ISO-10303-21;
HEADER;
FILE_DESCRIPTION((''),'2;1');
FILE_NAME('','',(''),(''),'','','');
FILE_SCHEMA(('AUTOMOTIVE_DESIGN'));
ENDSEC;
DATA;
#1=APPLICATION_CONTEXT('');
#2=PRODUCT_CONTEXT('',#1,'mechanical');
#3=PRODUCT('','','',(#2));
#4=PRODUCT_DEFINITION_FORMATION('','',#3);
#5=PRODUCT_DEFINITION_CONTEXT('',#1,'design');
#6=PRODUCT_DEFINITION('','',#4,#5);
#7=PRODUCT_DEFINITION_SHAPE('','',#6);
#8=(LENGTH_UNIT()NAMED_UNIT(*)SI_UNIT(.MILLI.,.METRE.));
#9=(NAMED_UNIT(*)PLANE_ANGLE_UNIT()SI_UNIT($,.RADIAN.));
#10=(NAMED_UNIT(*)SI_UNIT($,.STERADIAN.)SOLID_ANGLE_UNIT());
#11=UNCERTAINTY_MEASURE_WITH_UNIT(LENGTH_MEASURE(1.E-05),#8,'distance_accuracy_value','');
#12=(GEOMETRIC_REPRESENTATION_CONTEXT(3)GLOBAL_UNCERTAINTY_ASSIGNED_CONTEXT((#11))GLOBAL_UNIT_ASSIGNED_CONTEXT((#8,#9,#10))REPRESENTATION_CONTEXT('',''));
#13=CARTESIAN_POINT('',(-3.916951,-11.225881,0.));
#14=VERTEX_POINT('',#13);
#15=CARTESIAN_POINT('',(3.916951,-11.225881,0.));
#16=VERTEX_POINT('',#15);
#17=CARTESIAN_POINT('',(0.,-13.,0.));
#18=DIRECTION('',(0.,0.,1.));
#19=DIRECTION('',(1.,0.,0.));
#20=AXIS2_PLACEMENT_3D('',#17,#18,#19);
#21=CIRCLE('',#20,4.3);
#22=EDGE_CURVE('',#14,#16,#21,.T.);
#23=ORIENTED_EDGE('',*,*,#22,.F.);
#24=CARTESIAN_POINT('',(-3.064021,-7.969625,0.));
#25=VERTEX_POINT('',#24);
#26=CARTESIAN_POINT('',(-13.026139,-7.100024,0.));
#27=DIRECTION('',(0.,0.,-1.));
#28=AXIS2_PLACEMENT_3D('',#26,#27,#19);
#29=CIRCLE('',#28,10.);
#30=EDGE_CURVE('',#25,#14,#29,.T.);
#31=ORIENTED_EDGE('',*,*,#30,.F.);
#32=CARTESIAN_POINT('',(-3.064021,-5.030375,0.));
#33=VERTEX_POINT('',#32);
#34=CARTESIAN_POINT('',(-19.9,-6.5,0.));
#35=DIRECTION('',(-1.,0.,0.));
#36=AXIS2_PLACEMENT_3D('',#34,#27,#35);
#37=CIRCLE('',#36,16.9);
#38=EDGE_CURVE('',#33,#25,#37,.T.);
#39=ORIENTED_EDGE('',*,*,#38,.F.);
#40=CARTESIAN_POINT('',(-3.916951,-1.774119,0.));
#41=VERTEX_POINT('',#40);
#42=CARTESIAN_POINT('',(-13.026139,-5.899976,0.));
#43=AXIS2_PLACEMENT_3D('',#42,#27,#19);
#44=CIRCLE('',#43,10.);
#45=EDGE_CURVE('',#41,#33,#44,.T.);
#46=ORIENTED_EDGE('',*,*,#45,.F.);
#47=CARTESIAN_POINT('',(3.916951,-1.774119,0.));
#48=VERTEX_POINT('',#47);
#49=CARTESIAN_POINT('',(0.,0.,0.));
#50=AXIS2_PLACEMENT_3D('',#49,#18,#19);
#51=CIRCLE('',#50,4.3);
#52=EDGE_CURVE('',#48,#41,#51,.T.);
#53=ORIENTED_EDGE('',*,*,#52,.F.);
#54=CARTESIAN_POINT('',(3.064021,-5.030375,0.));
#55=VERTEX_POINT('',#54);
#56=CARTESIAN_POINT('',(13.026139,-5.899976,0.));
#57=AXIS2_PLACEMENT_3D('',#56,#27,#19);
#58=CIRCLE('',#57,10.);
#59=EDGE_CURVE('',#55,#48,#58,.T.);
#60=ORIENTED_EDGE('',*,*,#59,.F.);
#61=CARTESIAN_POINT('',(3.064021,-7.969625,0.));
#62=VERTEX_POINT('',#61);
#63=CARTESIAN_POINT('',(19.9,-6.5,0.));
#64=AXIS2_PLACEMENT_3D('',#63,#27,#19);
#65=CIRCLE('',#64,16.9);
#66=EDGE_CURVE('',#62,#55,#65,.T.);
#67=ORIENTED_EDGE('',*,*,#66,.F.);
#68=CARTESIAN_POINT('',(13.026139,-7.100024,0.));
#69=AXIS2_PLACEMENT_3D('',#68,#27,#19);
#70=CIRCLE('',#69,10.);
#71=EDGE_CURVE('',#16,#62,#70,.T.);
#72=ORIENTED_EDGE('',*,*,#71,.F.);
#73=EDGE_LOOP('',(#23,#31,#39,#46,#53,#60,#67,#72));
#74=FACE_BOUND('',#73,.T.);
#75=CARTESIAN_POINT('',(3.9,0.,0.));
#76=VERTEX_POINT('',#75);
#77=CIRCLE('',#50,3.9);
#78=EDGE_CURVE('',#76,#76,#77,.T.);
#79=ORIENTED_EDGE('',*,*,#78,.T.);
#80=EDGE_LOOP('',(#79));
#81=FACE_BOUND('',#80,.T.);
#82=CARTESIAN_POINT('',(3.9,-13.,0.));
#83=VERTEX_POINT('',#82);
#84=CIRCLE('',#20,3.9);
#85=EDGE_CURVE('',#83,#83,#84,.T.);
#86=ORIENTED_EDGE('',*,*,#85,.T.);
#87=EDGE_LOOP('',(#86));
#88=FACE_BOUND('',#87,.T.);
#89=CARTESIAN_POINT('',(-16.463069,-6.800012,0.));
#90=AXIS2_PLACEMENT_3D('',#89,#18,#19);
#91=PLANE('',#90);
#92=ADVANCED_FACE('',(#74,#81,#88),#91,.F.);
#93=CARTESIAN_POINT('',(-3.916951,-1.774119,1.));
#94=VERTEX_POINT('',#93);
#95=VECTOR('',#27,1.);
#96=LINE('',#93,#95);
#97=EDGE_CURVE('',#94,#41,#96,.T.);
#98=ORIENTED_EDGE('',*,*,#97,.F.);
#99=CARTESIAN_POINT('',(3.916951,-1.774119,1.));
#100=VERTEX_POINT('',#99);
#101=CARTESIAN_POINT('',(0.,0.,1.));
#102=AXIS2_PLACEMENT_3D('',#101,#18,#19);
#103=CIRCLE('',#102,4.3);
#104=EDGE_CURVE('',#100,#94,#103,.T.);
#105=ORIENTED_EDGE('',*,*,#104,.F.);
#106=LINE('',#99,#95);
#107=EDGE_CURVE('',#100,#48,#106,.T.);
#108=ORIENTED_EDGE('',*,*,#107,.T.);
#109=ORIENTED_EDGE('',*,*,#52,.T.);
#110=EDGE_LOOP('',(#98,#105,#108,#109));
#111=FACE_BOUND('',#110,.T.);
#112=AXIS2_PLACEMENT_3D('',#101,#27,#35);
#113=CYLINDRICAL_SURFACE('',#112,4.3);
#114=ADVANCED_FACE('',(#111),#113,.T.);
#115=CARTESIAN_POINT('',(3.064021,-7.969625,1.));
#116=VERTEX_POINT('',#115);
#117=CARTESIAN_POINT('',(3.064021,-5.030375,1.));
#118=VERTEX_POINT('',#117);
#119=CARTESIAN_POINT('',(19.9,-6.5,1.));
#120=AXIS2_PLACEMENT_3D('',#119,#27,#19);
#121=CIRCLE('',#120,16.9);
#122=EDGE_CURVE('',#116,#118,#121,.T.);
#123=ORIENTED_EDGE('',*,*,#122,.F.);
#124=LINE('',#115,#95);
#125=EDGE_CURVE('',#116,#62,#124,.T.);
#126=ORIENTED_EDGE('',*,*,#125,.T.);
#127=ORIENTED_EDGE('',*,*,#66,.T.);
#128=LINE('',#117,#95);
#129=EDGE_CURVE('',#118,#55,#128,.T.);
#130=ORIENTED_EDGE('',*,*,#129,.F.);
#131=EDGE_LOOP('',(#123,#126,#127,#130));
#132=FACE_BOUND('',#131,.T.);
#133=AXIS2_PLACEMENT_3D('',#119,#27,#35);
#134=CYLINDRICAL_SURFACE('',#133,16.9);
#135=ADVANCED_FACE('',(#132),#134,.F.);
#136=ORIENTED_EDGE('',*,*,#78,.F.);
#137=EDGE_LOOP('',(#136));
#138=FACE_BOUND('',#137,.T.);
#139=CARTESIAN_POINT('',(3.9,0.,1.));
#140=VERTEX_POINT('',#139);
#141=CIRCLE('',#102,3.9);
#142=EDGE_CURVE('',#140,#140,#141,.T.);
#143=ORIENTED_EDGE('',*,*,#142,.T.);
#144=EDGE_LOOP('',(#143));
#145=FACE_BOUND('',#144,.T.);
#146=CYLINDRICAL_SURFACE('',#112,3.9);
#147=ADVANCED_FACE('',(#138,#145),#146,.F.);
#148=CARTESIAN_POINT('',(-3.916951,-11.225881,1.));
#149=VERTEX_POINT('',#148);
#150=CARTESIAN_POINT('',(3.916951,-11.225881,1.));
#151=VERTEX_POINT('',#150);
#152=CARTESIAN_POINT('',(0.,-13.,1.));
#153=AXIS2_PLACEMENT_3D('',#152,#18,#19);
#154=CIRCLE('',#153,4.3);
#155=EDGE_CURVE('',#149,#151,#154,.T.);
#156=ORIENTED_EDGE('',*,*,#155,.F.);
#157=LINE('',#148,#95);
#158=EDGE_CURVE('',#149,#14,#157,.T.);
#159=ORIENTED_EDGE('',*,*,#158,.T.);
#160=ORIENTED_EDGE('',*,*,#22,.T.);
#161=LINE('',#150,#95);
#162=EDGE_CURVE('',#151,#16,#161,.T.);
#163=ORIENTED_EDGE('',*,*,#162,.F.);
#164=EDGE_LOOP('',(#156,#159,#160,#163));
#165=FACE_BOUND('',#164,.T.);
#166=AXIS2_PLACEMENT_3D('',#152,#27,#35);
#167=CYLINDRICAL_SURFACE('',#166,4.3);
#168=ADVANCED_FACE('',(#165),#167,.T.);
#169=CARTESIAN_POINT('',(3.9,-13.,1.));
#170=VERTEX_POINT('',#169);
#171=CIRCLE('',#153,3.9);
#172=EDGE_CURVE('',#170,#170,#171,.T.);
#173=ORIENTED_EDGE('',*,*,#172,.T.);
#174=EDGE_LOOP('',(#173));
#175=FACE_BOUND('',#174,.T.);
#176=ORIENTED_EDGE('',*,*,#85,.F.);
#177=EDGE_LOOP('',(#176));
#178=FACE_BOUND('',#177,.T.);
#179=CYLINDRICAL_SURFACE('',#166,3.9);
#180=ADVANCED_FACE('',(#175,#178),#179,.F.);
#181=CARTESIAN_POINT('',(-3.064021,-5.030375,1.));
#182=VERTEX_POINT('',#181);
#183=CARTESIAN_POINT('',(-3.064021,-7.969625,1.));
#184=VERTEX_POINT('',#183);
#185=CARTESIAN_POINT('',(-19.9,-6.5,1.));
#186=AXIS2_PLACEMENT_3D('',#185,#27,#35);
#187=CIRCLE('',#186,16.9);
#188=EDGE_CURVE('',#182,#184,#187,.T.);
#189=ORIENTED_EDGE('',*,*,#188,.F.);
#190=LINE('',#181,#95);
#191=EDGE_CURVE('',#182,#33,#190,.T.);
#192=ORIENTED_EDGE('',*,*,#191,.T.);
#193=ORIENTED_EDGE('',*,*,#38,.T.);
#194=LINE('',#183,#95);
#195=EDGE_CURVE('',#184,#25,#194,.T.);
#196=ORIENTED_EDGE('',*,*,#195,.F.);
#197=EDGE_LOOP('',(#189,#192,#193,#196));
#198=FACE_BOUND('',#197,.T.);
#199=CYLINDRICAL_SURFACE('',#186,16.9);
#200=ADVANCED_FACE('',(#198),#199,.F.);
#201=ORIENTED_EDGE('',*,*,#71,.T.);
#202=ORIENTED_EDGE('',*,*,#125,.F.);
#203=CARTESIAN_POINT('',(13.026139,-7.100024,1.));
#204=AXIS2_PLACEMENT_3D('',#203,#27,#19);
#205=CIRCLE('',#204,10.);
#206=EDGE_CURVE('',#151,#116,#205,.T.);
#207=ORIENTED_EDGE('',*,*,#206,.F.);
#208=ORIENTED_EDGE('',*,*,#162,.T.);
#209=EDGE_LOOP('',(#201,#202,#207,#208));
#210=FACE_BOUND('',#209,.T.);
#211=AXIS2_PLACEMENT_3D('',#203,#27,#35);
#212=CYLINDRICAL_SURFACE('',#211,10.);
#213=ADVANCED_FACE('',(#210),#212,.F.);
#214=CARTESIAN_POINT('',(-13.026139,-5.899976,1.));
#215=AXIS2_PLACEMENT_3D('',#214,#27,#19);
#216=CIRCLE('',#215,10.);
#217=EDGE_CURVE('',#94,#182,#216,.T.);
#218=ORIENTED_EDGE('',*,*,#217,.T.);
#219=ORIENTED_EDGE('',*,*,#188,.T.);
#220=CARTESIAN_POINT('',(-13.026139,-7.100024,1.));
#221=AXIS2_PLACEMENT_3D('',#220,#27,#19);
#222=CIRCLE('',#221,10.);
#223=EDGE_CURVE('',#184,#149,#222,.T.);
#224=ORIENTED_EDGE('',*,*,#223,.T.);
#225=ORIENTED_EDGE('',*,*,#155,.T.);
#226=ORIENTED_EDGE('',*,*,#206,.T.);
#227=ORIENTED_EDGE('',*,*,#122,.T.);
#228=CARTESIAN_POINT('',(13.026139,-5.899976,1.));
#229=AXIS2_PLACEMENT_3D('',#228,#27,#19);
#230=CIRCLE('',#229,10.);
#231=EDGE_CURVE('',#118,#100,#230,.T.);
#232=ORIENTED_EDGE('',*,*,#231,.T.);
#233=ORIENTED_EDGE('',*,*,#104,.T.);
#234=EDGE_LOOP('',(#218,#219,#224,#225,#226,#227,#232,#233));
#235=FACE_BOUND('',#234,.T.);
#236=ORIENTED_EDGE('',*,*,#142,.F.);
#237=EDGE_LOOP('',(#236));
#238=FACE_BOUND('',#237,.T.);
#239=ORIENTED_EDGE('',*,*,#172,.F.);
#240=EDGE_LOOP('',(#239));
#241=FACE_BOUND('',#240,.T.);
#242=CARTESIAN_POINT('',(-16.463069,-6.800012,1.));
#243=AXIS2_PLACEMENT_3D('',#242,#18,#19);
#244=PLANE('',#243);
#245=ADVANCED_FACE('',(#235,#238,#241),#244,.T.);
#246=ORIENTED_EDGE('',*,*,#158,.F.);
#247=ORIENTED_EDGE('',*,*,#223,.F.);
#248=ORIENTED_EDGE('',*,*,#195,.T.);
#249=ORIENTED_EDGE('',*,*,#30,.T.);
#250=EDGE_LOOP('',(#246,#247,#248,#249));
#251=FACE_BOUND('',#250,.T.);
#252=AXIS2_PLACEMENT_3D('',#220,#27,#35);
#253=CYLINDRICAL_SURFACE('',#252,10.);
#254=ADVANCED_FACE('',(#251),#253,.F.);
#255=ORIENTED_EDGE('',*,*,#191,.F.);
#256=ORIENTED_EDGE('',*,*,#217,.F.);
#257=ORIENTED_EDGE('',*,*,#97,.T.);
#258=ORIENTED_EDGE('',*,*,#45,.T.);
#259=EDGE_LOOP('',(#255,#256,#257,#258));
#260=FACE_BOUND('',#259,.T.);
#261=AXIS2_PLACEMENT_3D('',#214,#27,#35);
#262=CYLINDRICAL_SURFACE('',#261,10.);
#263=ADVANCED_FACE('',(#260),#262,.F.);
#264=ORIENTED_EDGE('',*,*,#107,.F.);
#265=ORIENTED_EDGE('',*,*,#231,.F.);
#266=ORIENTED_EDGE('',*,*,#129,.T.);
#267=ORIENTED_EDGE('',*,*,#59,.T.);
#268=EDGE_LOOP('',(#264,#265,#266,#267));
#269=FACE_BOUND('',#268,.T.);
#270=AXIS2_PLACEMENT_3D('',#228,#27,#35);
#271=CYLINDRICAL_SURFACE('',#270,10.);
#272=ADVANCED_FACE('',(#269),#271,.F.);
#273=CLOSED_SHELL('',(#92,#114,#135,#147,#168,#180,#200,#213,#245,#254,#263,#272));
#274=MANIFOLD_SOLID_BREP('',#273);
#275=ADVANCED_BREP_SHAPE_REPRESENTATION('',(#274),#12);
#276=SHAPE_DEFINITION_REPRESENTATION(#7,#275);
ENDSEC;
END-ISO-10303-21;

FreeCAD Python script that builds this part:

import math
import FreeCAD as App
import Part
import Sketcher

V = App.Vector
Q = App.Units.Quantity

doc = App.newDocument("Part")
body = doc.addObject("PartDesign::Body", "Body")

sketch1 = body.newObject("Sketcher::SketchObject", "Sketch")
sketch1.AttachmentSupport = (doc.getObject("XY_Plane"), [""])
sketch1.MapMode = "FlatFace"
sketch1.addGeometry([
    Part.ArcOfCircle(Part.Circle(V(0, 0, 0), V(0, 0, 1), 4.3), math.radians(-24), math.radians(204)),
    Part.ArcOfCircle(Part.Circle(V(-13, -5.9, 0), V(0, 0, 1), 10), math.radians(4.99), math.radians(24.37)),
    Part.ArcOfCircle(Part.Circle(V(-19.9, -6.5, 0), V(0, 0, 1), 16.9), math.radians(-4.99), math.radians(4.99)),
    Part.ArcOfCircle(Part.Circle(V(-13, -7.1, 0), V(0, 0, 1), 10), math.radians(-24.37), math.radians(-4.99)),
    Part.ArcOfCircle(Part.Circle(V(0, -13, 0), V(0, 0, 1), 4.3), math.radians(156), math.radians(384)),
    Part.ArcOfCircle(Part.Circle(V(13, -7.1, 0), V(0, 0, 1), 10), math.radians(-175.01), math.radians(-155.63)),
    Part.ArcOfCircle(Part.Circle(V(19.9, -6.5, 0), V(0, 0, 1), 16.9), math.radians(175.01), math.radians(184.99)),
    Part.ArcOfCircle(Part.Circle(V(13, -5.9, 0), V(0, 0, 1), 10), math.radians(155.63), math.radians(175.01)),
    Part.Circle(V(0, -13, 0), V(0, 0, 1), 3.9),
    Part.Circle(V(0, 0, 0), V(0, 0, 1), 3.9),
], False)
sketch1.addConstraint([
    Sketcher.Constraint("Tangent", 0, 2, 1, 2),
    Sketcher.Constraint("Tangent", 1, 1, 2, 2),
    Sketcher.Constraint("Tangent", 2, 1, 3, 2),
    Sketcher.Constraint("Tangent", 3, 1, 4, 1),
    Sketcher.Constraint("Tangent", 4, 2, 5, 2),
    Sketcher.Constraint("Tangent", 5, 1, 6, 2),
    Sketcher.Constraint("Tangent", 6, 1, 7, 2),
    Sketcher.Constraint("Tangent", 7, 1, 0, 1),
    Sketcher.Constraint("Coincident", 0, 3, -1, 1),
    Sketcher.Constraint("Coincident", 9, 3, -1, 1),
    Sketcher.Constraint("Coincident", 8, 3, 4, 3),
    Sketcher.Constraint("Equal", 1, 3),
    Sketcher.Constraint("Equal", 0, 4),
    Sketcher.Constraint("Equal", 3, 5),
    Sketcher.Constraint("Equal", 2, 6),
    Sketcher.Constraint("Equal", 5, 7),
    Sketcher.Constraint("Equal", 8, 9),
    Sketcher.Constraint("Symmetric", 3, 3, 5, 3, -2),
    Sketcher.Constraint("Horizontal", 2, 3, 6, 3),
    Sketcher.Constraint("Vertical", 1, 3, 3, 3),
    Sketcher.Constraint("Radius", 1, Q("10 mm")),
    Sketcher.Constraint("Diameter", 8, Q("7.8 mm")),
    Sketcher.Constraint("Radius", 0, Q("4.3 mm")),
    Sketcher.Constraint("Radius", 2, Q("16.9 mm")),
    Sketcher.Constraint("DistanceY", 4, 3, -1, 1, Q("13 mm")),
    Sketcher.Constraint("DistanceX", 2, 3, -1, 1, Q("19.9 mm")),
])
pad1 = body.newObject("PartDesign::Pad", "Pad")
pad1.Profile = sketch1
pad1.Length = 1

doc.recompute()
